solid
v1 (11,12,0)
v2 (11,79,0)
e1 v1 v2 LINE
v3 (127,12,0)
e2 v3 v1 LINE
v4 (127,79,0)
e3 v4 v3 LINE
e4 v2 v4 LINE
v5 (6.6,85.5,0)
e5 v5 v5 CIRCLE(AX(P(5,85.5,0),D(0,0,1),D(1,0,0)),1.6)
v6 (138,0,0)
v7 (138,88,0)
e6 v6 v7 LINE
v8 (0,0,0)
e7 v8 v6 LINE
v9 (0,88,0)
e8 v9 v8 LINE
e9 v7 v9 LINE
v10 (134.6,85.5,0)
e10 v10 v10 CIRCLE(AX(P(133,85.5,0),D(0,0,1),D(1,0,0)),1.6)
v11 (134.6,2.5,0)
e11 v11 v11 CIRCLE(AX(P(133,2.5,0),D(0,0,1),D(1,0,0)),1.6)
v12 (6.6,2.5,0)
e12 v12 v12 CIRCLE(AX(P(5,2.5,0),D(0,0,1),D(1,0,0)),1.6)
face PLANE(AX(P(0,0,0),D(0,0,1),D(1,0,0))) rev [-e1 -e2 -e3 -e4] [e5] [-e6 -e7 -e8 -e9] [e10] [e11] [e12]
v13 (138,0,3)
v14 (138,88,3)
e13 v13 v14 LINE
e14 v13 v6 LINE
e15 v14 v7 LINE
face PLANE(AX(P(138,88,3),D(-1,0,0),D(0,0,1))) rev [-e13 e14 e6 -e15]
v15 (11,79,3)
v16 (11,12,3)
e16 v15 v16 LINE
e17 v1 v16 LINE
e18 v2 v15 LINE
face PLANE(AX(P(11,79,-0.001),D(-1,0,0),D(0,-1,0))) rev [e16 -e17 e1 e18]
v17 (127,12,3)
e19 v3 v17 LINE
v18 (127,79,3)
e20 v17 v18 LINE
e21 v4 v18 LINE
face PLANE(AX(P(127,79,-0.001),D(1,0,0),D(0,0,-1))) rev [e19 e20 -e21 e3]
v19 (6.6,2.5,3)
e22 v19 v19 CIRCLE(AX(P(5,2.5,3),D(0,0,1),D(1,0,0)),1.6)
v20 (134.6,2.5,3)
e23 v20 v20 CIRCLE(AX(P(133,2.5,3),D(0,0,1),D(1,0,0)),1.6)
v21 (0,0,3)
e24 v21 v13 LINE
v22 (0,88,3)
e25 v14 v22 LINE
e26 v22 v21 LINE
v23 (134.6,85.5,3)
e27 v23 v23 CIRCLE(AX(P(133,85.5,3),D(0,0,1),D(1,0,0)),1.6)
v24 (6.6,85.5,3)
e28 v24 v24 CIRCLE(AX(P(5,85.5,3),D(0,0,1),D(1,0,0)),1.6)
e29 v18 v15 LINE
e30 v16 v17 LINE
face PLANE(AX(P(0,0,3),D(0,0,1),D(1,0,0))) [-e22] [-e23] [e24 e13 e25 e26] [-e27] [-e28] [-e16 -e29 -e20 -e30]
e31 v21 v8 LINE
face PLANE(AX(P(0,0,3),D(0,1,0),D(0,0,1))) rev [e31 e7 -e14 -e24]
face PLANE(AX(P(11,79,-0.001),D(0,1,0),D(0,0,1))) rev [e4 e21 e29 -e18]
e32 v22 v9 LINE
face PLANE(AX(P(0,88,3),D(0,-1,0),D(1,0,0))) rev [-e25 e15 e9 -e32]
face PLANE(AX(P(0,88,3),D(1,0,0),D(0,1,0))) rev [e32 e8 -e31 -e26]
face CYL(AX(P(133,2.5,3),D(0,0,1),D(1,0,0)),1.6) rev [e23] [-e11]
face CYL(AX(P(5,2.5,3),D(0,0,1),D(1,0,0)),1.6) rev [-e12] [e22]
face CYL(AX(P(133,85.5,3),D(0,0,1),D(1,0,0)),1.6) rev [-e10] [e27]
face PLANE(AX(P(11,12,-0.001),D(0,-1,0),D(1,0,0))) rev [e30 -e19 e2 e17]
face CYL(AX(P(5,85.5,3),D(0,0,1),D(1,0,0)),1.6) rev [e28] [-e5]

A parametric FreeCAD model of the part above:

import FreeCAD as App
import Part
import Sketcher
from FreeCAD import Vector

doc = App.newDocument("Part")
body = doc.addObject("PartDesign::Body", "Body")

# Sketch on XY plane
sketch1 = doc.addObject("Sketcher::SketchObject", "Sketch")
body.addObject(sketch1)
sketch1.AttachmentSupport = (doc.XY_Plane, [""])
sketch1.MapMode = "FlatFace"
sketch1.addGeometry(Part.LineSegment(Vector(0, 88, 0), Vector(0, 0, 0)), False)
sketch1.addGeometry(Part.LineSegment(Vector(0, 0, 0), Vector(138, 0, 0)), False)
sketch1.addGeometry(Part.LineSegment(Vector(138, 0, 0), Vector(138, 88, 0)), False)
sketch1.addGeometry(Part.LineSegment(Vector(138, 88, 0), Vector(0, 88, 0)), False)
sketch1.addConstraint(Sketcher.Constraint("Coincident", 0, 2, 1, 1))
sketch1.addConstraint(Sketcher.Constraint("Coincident", 1, 2, 2, 1))
sketch1.addConstraint(Sketcher.Constraint("Coincident", 2, 2, 3, 1))
sketch1.addConstraint(Sketcher.Constraint("Coincident", 3, 2, 0, 1))
sketch1.addConstraint(Sketcher.Constraint("Vertical", 0))
sketch1.addConstraint(Sketcher.Constraint("Horizontal", 1))
sketch1.addConstraint(Sketcher.Constraint("Vertical", 2))
sketch1.addConstraint(Sketcher.Constraint("Horizontal", 3))
sketch1.addConstraint(Sketcher.Constraint("Coincident", 0, 2, -1, 1))
sketch1.addConstraint(Sketcher.Constraint("DistanceX", 1, 1, 1, 2, 138.0))
sketch1.addConstraint(Sketcher.Constraint("DistanceY", 0, 2, 0, 1, 88.0))
pad1 = doc.addObject("PartDesign::Pad", "Pad")
body.addObject(pad1)
pad1.Profile = sketch1
pad1.Length = 3

# Sketch on XY plane
sketch2 = doc.addObject("Sketcher::SketchObject", "Sketch001")
body.addObject(sketch2)
sketch2.AttachmentSupport = (doc.XY_Plane, [""])
sketch2.MapMode = "FlatFace"
sketch2.AttachmentOffset = App.Placement(Vector(0, 0, 3), App.Rotation())
sketch2.addGeometry(Part.LineSegment(Vector(11, 79, 0), Vector(11, 12, 0)), False)
sketch2.addGeometry(Part.LineSegment(Vector(11, 12, 0), Vector(127, 12, 0)), False)
sketch2.addGeometry(Part.LineSegment(Vector(127, 12, 0), Vector(127, 79, 0)), False)
sketch2.addGeometry(Part.LineSegment(Vector(127, 79, 0), Vector(11, 79, 0)), False)
sketch2.addConstraint(Sketcher.Constraint("Coincident", 0, 2, 1, 1))
sketch2.addConstraint(Sketcher.Constraint("Coincident", 1, 2, 2, 1))
sketch2.addConstraint(Sketcher.Constraint("Coincident", 2, 2, 3, 1))
sketch2.addConstraint(Sketcher.Constraint("Coincident", 3, 2, 0, 1))
sketch2.addConstraint(Sketcher.Constraint("Vertical", 0))
sketch2.addConstraint(Sketcher.Constraint("Horizontal", 1))
sketch2.addConstraint(Sketcher.Constraint("Vertical", 2))
sketch2.addConstraint(Sketcher.Constraint("Horizontal", 3))
sketch2.addConstraint(Sketcher.Constraint("DistanceX", 1, 1, 1, 2, 116.0))
sketch2.addConstraint(Sketcher.Constraint("DistanceY", 0, 2, 0, 1, 67.0))
sketch2.addConstraint(Sketcher.Constraint("DistanceX", -1, 1, 0, 2, 11.0))
sketch2.addConstraint(Sketcher.Constraint("DistanceY", -1, 1, 0, 2, 12.0))
pocket1 = doc.addObject("PartDesign::Pocket", "Pocket")
body.addObject(pocket1)
pocket1.Profile = sketch2
pocket1.Type = "UpToFirst"

# Sketch on XY plane
sketch3 = doc.addObject("Sketcher::SketchObject", "Sketch002")
body.addObject(sketch3)
sketch3.AttachmentSupport = (doc.XY_Plane, [""])
sketch3.MapMode = "FlatFace"
sketch3.AttachmentOffset = App.Placement(Vector(0, 0, 3), App.Rotation())
sketch3.addGeometry(Part.Circle(Vector(5, 85.5, 0), Vector(0, 0, 1), 1.6), False)
sketch3.addGeometry(Part.Circle(Vector(133, 85.5, 0), Vector(0, 0, 1), 1.6), False)
sketch3.addGeometry(Part.Circle(Vector(133, 2.5, 0), Vector(0, 0, 1), 1.6), False)
sketch3.addGeometry(Part.Circle(Vector(5, 2.5, 0), Vector(0, 0, 1), 1.6), False)
sketch3.addConstraint(Sketcher.Constraint("Equal", 0, 1))
sketch3.addConstraint(Sketcher.Constraint("Equal", 1, 2))
sketch3.addConstraint(Sketcher.Constraint("Equal", 2, 3))
sketch3.addConstraint(Sketcher.Constraint("Horizontal", 0, 3, 1, 3))
sketch3.addConstraint(Sketcher.Constraint("Horizontal", 2, 3, 3, 3))
sketch3.addConstraint(Sketcher.Constraint("Vertical", 1, 3, 2, 3))
sketch3.addConstraint(Sketcher.Constraint("Vertical", 0, 3, 3, 3))
sketch3.addConstraint(Sketcher.Constraint("Diameter", 0, 3.2))
sketch3.addConstraint(Sketcher.Constraint("DistanceX", -1, 1, 0, 3, 5.0))
sketch3.addConstraint(Sketcher.Constraint("DistanceX", -1, 1, 1, 3, 133.0))
sketch3.addConstraint(Sketcher.Constraint("DistanceY", 2, 3, 1, 3, 83.0))
sketch3.addConstraint(Sketcher.Constraint("DistanceY", -1, 1, 0, 3, 85.5))
doc.recompute()
hole = doc.addObject("PartDesign::Hole", "Hole")
body.addObject(hole)
hole.Profile = sketch3
hole.ThreadType = "None"
hole.Diameter = 3.2
hole.DepthType = "ThroughAll"

doc.recompute()
